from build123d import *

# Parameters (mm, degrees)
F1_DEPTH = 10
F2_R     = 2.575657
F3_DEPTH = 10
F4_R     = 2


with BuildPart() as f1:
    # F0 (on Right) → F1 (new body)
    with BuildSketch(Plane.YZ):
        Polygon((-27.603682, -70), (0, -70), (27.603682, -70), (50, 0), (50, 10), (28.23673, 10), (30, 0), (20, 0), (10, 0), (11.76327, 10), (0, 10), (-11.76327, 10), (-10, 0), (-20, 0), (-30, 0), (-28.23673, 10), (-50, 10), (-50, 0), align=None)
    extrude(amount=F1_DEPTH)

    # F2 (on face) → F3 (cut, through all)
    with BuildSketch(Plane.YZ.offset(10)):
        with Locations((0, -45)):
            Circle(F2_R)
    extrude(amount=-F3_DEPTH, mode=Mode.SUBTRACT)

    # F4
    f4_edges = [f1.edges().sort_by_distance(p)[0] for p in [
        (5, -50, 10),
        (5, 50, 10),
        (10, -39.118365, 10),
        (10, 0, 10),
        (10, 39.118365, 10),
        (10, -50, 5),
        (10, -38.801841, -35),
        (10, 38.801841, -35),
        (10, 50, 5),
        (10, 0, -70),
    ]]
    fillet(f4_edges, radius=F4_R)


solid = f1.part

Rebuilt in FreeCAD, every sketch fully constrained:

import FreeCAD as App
import Part
import Sketcher
Q = App.Units.Quantity


def edges_at(feature, points):
    """Names of the edges that pass closest to the given points."""
    edges = feature.Shape.Edges
    near = lambda p: min(range(len(edges)), key=lambda i: edges[i].distToShape(Part.Vertex(*p))[0])
    return sorted({f"Edge{near(p) + 1}" for p in points})


def add_polygon(sketch, points):
    """Adds a closed chain of lines whose ends are joined by coincident constraints."""
    first, n = sketch.GeometryCount, len(points)
    for a, b in zip(points, points[1:] + points[:1]):
        sketch.addGeometry(Part.LineSegment(App.Vector(*a, 0), App.Vector(*b, 0)), False)
    for i in range(n):
        sketch.addConstraint(Sketcher.Constraint("Coincident", first + i, 2, first + (i + 1) % n, 1))

doc = App.newDocument("Part")
body = doc.addObject("PartDesign::Body", "Body")

# Sketch on YZ plane
sketch1 = doc.addObject("Sketcher::SketchObject", "Sketch")
body.addObject(sketch1)
sketch1.AttachmentSupport = (doc.YZ_Plane, [""])
sketch1.MapMode = "FlatFace"
add_polygon(sketch1, [(-28, -70), (28, -70), (50, 0), (50, 10), (28, 10), (30, 0), (10, 0), (12, 10), (-12, 10), (-10, 0), (-30, 0), (-28, 10), (-50, 10), (-50, 0)])  # lines 0-13
sketch1.addConstraint(Sketcher.Constraint("Horizontal", 0))
sketch1.addConstraint(Sketcher.Constraint("Vertical", 2))
sketch1.addConstraint(Sketcher.Constraint("Horizontal", 3))
sketch1.addConstraint(Sketcher.Constraint("Horizontal", 5))
sketch1.addConstraint(Sketcher.Constraint("Horizontal", 7))
sketch1.addConstraint(Sketcher.Constraint("Horizontal", 9))
sketch1.addConstraint(Sketcher.Constraint("Horizontal", 11))
sketch1.addConstraint(Sketcher.Constraint("Vertical", 12))
sketch1.addConstraint(Sketcher.Constraint("Symmetric", 5, 2, 8, 2, -1, 1))
sketch1.addConstraint(Sketcher.Constraint("Symmetric", 1, 2, 12, 2, -1, 1))
sketch1.addConstraint(Sketcher.Constraint("Symmetric", 4, 2, 9, 2, -2))
sketch1.addConstraint(Sketcher.Constraint("Symmetric", 3, 2, 10, 2, -2))
sketch1.addConstraint(Sketcher.Constraint("PointOnObject", 1, 2, -1))
sketch1.addConstraint(Sketcher.Constraint("Parallel", 4, 8))
sketch1.addConstraint(Sketcher.Constraint("Parallel", 6, 10))
sketch1.addConstraint(Sketcher.Constraint("Horizontal", 3, 2, 6, 2))
sketch1.addConstraint(Sketcher.Constraint("Equal", 1, 13))
sketch1.addConstraint(Sketcher.Constraint("DistanceX", 5, 2, 5, 1, 20.0))
sketch1.addConstraint(Sketcher.Constraint("DistanceY", 2, 1, 2, 2, 10.0))
sketch1.addConstraint(Sketcher.Constraint("Angle", 4, Q("-79.999999 deg")))
sketch1.addConstraint(Sketcher.Constraint("DistanceY", 0, 2, -1, 1, 70.0))
sketch1.addConstraint(Sketcher.Constraint("DistanceX", -1, 1, 1, 2, 50.0))
sketch1.addConstraint(Sketcher.Constraint("DistanceX", -1, 1, 4, 2, 30.0))
sketch1.addConstraint(Sketcher.Constraint("DistanceX", 0, 1, 0, 2, 55.207364))
pad1 = doc.addObject("PartDesign::Pad", "Pad")
body.addObject(pad1)
pad1.Profile = sketch1
pad1.Length = 10

# Sketch on YZ plane
sketch2 = doc.addObject("Sketcher::SketchObject", "Sketch001")
body.addObject(sketch2)
sketch2.AttachmentSupport = (doc.YZ_Plane, [""])
sketch2.MapMode = "FlatFace"
sketch2.AttachmentOffset = App.Placement(App.Vector(0, 0, 10), App.Rotation())
sketch2.addGeometry(Part.Circle(App.Vector(0, -45, 0), App.Vector(0, 0, 1), 2.6), False)
sketch2.addConstraint(Sketcher.Constraint("PointOnObject", 0, 3, -2))
sketch2.addConstraint(Sketcher.Constraint("DistanceY", 0, 3, -1, 1, 45.0))
sketch2.addConstraint(Sketcher.Constraint("Diameter", 0, 5.151314))
pocket1 = doc.addObject("PartDesign::Pocket", "Pocket")
body.addObject(pocket1)
pocket1.Profile = sketch2
pocket1.Type = "ThroughAll"
doc.recompute()

fillet = doc.addObject("PartDesign::Fillet", "Fillet")
body.addObject(fillet)
fillet.Base = (pocket1, edges_at(pocket1, [
    (5, -50, 10),
    (5, 50, 10),
    (10, -39.118, 10),
    (10, 0, 10),
    (10, 39.118, 10),
    (10, -50, 5),
    (10, -38.802, -35),
    (10, 38.802, -35),
    (10, 50, 5),
    (10, 0, -70),
]))
fillet.Radius = 2

doc.recompute()
